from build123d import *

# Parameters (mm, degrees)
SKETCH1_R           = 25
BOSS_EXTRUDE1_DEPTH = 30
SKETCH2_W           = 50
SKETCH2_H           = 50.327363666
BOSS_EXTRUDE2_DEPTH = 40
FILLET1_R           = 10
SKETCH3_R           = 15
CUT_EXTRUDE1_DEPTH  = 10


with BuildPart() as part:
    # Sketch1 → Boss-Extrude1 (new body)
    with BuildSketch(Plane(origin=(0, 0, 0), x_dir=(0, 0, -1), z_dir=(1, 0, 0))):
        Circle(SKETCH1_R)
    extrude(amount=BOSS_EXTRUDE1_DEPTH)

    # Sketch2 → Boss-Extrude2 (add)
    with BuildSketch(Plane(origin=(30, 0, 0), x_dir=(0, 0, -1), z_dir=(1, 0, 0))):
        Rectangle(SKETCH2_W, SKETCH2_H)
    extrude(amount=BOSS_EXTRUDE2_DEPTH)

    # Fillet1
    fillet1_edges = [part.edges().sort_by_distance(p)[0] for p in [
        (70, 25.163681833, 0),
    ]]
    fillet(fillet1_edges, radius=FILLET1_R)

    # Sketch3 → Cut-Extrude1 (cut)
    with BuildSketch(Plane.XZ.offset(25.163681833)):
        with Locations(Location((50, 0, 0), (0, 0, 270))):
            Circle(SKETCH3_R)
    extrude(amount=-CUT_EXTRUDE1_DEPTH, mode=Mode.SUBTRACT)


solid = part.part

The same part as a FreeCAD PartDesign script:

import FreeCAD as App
import Part
import Sketcher


def edges_at(feature, points):
    """Names of the edges that pass closest to the given points."""
    edges = feature.Shape.Edges
    near = lambda p: min(range(len(edges)), key=lambda i: edges[i].distToShape(Part.Vertex(*p))[0])
    return sorted({f"Edge{near(p) + 1}" for p in points})


def add_polygon(sketch, points):
    """Adds a closed chain of lines whose ends are joined by coincident constraints."""
    first, n = sketch.GeometryCount, len(points)
    for a, b in zip(points, points[1:] + points[:1]):
        sketch.addGeometry(Part.LineSegment(App.Vector(*a, 0), App.Vector(*b, 0)), False)
    for i in range(n):
        sketch.addConstraint(Sketcher.Constraint("Coincident", first + i, 2, first + (i + 1) % n, 1))

doc = App.newDocument("Part")
body = doc.addObject("PartDesign::Body", "Body")

sketch1 = body.newObject("Sketcher::SketchObject", "Sketch")
sketch1.AttachmentSupport = (doc.getObject("YZ_Plane"), [""])
sketch1.MapMode = "FlatFace"
sketch1.addGeometry(Part.Circle(App.Vector(0, 0, 0), App.Vector(0, 0, 1), 25), False)
sketch1.addConstraint(Sketcher.Constraint("Coincident", 0, 3, -1, 1))
sketch1.addConstraint(Sketcher.Constraint("Diameter", 0, 50.0))
pad1 = body.newObject("PartDesign::Pad", "Pad")
pad1.Profile = sketch1
pad1.Length = 30

sketch2 = body.newObject("Sketcher::SketchObject", "Sketch001")
sketch2.AttachmentSupport = (doc.getObject("YZ_Plane"), [""])
sketch2.MapMode = "FlatFace"
sketch2.AttachmentOffset = App.Placement(App.Vector(0, 0, 30), App.Rotation())
add_polygon(sketch2, [(25, 25), (-25, 25), (-25, -25), (25, -25)])
sketch2.addConstraint(Sketcher.Constraint("Horizontal", 0))
sketch2.addConstraint(Sketcher.Constraint("Vertical", 1))
sketch2.addConstraint(Sketcher.Constraint("Horizontal", 2))
sketch2.addConstraint(Sketcher.Constraint("Vertical", 3))
sketch2.addConstraint(Sketcher.Constraint("Symmetric", 0, 2, 2, 2, -1, 1))
sketch2.addConstraint(Sketcher.Constraint("DistanceY", 1, 2, 1, 1, 50.0))
sketch2.addConstraint(Sketcher.Constraint("DistanceX", 0, 2, 0, 1, 50.327364))
pad2 = body.newObject("PartDesign::Pad", "Pad001")
pad2.Profile = sketch2
pad2.Length = 40
doc.recompute()

fillet = body.newObject("PartDesign::Fillet", "Fillet")
fillet.Base = (pad2, edges_at(pad2, [(70, 25.164, 0)]))
fillet.Radius = 10

sketch3 = body.newObject("Sketcher::SketchObject", "Sketch002")
sketch3.AttachmentSupport = (doc.getObject("XZ_Plane"), [""])
sketch3.MapMode = "FlatFace"
sketch3.AttachmentOffset = App.Placement(App.Vector(0, 0, 25.163682), App.Rotation())
sketch3.addGeometry(Part.Circle(App.Vector(50, 0, 0), App.Vector(0, 0, 1), 15), False)
sketch3.addConstraint(Sketcher.Constraint("PointOnObject", 0, 3, -1))
sketch3.addConstraint(Sketcher.Constraint("Diameter", 0, 30.0))
sketch3.addConstraint(Sketcher.Constraint("DistanceX", -1, 1, 0, 3, 50.0))
pocket1 = body.newObject("PartDesign::Pocket", "Pocket")
pocket1.Profile = sketch3
pocket1.Length = 10

doc.recompute()
